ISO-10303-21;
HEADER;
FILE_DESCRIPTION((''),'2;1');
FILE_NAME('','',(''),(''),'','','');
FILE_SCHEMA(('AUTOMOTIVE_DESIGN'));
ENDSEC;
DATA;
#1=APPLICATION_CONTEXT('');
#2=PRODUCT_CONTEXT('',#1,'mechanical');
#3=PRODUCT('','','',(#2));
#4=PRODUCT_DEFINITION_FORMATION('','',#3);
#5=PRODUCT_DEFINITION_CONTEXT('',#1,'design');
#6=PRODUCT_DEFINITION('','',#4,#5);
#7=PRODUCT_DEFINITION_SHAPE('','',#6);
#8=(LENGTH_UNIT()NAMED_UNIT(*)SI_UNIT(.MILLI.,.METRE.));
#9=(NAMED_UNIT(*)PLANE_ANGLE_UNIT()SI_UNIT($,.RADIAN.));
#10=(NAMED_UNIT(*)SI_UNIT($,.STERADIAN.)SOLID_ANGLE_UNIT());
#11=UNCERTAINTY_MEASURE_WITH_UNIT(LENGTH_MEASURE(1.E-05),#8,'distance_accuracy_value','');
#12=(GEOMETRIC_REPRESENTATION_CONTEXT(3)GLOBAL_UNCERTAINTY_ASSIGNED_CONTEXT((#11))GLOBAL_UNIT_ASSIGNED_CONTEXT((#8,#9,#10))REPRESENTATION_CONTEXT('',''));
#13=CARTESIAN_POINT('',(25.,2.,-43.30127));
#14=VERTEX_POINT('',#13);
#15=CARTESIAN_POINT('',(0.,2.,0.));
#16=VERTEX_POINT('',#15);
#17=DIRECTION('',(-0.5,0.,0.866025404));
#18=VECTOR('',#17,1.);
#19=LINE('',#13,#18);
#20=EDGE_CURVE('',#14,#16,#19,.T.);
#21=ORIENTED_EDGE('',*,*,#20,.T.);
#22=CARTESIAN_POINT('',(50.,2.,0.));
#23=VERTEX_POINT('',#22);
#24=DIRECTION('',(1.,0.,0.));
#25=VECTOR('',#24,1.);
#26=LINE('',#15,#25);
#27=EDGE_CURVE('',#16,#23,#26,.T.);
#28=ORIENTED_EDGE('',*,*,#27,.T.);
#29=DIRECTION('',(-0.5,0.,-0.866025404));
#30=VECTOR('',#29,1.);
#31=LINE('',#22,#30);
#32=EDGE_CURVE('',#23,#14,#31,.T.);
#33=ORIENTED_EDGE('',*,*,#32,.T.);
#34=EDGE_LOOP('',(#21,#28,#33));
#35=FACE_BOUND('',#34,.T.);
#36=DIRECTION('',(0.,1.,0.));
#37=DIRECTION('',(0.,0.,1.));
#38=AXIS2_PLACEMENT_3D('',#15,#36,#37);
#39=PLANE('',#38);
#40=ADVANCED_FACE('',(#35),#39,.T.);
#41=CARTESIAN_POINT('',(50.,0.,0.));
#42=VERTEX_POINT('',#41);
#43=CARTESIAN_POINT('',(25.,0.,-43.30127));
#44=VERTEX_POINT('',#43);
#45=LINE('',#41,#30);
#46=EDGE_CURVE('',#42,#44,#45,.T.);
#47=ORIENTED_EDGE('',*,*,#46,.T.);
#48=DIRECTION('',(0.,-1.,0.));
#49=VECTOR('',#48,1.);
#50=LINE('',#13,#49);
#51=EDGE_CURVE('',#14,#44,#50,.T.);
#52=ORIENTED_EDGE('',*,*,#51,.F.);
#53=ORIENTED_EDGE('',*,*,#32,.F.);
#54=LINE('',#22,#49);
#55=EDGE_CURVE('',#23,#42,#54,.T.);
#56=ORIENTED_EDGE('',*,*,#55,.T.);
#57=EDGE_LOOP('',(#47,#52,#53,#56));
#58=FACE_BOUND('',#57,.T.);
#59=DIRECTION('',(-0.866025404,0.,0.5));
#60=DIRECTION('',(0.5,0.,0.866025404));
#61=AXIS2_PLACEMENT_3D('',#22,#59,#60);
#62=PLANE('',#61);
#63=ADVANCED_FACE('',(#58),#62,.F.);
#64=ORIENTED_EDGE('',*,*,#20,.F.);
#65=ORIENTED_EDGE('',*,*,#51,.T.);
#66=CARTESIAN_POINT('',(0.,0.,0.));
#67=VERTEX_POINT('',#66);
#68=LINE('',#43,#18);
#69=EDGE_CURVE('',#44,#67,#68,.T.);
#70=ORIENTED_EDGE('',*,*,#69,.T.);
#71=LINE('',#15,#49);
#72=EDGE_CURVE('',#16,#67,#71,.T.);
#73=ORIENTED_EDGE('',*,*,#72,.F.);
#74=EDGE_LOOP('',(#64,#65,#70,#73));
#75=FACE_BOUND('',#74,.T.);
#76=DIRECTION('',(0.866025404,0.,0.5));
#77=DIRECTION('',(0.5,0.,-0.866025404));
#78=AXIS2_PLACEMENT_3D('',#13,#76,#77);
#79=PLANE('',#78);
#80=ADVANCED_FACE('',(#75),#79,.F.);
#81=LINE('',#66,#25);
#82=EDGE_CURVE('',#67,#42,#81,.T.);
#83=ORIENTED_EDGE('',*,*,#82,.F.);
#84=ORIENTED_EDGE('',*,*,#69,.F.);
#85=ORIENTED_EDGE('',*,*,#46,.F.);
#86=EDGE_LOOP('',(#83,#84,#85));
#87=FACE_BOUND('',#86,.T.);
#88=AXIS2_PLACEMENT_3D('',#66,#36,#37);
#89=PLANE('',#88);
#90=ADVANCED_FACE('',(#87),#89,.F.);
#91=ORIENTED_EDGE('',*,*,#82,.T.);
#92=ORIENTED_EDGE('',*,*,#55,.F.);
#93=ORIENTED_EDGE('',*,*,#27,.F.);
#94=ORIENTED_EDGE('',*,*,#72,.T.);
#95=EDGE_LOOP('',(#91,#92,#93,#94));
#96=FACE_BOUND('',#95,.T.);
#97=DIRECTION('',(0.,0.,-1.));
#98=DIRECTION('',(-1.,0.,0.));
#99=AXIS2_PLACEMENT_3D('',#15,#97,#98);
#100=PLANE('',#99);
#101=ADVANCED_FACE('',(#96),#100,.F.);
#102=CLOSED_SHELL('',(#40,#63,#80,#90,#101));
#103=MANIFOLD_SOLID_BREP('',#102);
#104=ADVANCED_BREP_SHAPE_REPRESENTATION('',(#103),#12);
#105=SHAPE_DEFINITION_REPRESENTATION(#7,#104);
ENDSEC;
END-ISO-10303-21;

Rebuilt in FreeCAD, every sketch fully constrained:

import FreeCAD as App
import Part
import Sketcher

V = App.Vector
Q = App.Units.Quantity

doc = App.newDocument("Part")
body = doc.addObject("PartDesign::Body", "Body")

# Sketch on XZ plane
sketch1 = doc.addObject("Sketcher::SketchObject", "Sketch")
body.addObject(sketch1)
sketch1.AttachmentSupport = (doc.XZ_Plane, [""])
sketch1.MapMode = "FlatFace"
sketch1.addGeometry([
    Part.LineSegment(V(0, 0, 0), V(50, 0, 0)),
    Part.LineSegment(V(50, 0, 0), V(25, -43, 0)),
    Part.LineSegment(V(25, -43, 0), V(0, 0, 0)),
], False)
sketch1.addConstraint([
    Sketcher.Constraint("Coincident", 0, 2, 1, 1),
    Sketcher.Constraint("Coincident", 1, 2, 2, 1),
    Sketcher.Constraint("Coincident", 2, 2, 0, 1),
    Sketcher.Constraint("Horizontal", 0),
    Sketcher.Constraint("Coincident", 2, 2, -1, 1),
    Sketcher.Constraint("Equal", 1, 2),
    Sketcher.Constraint("DistanceX", 0, 1, 0, 2, 50.0),
    Sketcher.Constraint("Angle", 1, Q("-120 deg")),
])
pad1 = doc.addObject("PartDesign::Pad", "Pad")
body.addObject(pad1)
pad1.Profile = sketch1
pad1.Length = 2
pad1.Reversed = True

doc.recompute()
